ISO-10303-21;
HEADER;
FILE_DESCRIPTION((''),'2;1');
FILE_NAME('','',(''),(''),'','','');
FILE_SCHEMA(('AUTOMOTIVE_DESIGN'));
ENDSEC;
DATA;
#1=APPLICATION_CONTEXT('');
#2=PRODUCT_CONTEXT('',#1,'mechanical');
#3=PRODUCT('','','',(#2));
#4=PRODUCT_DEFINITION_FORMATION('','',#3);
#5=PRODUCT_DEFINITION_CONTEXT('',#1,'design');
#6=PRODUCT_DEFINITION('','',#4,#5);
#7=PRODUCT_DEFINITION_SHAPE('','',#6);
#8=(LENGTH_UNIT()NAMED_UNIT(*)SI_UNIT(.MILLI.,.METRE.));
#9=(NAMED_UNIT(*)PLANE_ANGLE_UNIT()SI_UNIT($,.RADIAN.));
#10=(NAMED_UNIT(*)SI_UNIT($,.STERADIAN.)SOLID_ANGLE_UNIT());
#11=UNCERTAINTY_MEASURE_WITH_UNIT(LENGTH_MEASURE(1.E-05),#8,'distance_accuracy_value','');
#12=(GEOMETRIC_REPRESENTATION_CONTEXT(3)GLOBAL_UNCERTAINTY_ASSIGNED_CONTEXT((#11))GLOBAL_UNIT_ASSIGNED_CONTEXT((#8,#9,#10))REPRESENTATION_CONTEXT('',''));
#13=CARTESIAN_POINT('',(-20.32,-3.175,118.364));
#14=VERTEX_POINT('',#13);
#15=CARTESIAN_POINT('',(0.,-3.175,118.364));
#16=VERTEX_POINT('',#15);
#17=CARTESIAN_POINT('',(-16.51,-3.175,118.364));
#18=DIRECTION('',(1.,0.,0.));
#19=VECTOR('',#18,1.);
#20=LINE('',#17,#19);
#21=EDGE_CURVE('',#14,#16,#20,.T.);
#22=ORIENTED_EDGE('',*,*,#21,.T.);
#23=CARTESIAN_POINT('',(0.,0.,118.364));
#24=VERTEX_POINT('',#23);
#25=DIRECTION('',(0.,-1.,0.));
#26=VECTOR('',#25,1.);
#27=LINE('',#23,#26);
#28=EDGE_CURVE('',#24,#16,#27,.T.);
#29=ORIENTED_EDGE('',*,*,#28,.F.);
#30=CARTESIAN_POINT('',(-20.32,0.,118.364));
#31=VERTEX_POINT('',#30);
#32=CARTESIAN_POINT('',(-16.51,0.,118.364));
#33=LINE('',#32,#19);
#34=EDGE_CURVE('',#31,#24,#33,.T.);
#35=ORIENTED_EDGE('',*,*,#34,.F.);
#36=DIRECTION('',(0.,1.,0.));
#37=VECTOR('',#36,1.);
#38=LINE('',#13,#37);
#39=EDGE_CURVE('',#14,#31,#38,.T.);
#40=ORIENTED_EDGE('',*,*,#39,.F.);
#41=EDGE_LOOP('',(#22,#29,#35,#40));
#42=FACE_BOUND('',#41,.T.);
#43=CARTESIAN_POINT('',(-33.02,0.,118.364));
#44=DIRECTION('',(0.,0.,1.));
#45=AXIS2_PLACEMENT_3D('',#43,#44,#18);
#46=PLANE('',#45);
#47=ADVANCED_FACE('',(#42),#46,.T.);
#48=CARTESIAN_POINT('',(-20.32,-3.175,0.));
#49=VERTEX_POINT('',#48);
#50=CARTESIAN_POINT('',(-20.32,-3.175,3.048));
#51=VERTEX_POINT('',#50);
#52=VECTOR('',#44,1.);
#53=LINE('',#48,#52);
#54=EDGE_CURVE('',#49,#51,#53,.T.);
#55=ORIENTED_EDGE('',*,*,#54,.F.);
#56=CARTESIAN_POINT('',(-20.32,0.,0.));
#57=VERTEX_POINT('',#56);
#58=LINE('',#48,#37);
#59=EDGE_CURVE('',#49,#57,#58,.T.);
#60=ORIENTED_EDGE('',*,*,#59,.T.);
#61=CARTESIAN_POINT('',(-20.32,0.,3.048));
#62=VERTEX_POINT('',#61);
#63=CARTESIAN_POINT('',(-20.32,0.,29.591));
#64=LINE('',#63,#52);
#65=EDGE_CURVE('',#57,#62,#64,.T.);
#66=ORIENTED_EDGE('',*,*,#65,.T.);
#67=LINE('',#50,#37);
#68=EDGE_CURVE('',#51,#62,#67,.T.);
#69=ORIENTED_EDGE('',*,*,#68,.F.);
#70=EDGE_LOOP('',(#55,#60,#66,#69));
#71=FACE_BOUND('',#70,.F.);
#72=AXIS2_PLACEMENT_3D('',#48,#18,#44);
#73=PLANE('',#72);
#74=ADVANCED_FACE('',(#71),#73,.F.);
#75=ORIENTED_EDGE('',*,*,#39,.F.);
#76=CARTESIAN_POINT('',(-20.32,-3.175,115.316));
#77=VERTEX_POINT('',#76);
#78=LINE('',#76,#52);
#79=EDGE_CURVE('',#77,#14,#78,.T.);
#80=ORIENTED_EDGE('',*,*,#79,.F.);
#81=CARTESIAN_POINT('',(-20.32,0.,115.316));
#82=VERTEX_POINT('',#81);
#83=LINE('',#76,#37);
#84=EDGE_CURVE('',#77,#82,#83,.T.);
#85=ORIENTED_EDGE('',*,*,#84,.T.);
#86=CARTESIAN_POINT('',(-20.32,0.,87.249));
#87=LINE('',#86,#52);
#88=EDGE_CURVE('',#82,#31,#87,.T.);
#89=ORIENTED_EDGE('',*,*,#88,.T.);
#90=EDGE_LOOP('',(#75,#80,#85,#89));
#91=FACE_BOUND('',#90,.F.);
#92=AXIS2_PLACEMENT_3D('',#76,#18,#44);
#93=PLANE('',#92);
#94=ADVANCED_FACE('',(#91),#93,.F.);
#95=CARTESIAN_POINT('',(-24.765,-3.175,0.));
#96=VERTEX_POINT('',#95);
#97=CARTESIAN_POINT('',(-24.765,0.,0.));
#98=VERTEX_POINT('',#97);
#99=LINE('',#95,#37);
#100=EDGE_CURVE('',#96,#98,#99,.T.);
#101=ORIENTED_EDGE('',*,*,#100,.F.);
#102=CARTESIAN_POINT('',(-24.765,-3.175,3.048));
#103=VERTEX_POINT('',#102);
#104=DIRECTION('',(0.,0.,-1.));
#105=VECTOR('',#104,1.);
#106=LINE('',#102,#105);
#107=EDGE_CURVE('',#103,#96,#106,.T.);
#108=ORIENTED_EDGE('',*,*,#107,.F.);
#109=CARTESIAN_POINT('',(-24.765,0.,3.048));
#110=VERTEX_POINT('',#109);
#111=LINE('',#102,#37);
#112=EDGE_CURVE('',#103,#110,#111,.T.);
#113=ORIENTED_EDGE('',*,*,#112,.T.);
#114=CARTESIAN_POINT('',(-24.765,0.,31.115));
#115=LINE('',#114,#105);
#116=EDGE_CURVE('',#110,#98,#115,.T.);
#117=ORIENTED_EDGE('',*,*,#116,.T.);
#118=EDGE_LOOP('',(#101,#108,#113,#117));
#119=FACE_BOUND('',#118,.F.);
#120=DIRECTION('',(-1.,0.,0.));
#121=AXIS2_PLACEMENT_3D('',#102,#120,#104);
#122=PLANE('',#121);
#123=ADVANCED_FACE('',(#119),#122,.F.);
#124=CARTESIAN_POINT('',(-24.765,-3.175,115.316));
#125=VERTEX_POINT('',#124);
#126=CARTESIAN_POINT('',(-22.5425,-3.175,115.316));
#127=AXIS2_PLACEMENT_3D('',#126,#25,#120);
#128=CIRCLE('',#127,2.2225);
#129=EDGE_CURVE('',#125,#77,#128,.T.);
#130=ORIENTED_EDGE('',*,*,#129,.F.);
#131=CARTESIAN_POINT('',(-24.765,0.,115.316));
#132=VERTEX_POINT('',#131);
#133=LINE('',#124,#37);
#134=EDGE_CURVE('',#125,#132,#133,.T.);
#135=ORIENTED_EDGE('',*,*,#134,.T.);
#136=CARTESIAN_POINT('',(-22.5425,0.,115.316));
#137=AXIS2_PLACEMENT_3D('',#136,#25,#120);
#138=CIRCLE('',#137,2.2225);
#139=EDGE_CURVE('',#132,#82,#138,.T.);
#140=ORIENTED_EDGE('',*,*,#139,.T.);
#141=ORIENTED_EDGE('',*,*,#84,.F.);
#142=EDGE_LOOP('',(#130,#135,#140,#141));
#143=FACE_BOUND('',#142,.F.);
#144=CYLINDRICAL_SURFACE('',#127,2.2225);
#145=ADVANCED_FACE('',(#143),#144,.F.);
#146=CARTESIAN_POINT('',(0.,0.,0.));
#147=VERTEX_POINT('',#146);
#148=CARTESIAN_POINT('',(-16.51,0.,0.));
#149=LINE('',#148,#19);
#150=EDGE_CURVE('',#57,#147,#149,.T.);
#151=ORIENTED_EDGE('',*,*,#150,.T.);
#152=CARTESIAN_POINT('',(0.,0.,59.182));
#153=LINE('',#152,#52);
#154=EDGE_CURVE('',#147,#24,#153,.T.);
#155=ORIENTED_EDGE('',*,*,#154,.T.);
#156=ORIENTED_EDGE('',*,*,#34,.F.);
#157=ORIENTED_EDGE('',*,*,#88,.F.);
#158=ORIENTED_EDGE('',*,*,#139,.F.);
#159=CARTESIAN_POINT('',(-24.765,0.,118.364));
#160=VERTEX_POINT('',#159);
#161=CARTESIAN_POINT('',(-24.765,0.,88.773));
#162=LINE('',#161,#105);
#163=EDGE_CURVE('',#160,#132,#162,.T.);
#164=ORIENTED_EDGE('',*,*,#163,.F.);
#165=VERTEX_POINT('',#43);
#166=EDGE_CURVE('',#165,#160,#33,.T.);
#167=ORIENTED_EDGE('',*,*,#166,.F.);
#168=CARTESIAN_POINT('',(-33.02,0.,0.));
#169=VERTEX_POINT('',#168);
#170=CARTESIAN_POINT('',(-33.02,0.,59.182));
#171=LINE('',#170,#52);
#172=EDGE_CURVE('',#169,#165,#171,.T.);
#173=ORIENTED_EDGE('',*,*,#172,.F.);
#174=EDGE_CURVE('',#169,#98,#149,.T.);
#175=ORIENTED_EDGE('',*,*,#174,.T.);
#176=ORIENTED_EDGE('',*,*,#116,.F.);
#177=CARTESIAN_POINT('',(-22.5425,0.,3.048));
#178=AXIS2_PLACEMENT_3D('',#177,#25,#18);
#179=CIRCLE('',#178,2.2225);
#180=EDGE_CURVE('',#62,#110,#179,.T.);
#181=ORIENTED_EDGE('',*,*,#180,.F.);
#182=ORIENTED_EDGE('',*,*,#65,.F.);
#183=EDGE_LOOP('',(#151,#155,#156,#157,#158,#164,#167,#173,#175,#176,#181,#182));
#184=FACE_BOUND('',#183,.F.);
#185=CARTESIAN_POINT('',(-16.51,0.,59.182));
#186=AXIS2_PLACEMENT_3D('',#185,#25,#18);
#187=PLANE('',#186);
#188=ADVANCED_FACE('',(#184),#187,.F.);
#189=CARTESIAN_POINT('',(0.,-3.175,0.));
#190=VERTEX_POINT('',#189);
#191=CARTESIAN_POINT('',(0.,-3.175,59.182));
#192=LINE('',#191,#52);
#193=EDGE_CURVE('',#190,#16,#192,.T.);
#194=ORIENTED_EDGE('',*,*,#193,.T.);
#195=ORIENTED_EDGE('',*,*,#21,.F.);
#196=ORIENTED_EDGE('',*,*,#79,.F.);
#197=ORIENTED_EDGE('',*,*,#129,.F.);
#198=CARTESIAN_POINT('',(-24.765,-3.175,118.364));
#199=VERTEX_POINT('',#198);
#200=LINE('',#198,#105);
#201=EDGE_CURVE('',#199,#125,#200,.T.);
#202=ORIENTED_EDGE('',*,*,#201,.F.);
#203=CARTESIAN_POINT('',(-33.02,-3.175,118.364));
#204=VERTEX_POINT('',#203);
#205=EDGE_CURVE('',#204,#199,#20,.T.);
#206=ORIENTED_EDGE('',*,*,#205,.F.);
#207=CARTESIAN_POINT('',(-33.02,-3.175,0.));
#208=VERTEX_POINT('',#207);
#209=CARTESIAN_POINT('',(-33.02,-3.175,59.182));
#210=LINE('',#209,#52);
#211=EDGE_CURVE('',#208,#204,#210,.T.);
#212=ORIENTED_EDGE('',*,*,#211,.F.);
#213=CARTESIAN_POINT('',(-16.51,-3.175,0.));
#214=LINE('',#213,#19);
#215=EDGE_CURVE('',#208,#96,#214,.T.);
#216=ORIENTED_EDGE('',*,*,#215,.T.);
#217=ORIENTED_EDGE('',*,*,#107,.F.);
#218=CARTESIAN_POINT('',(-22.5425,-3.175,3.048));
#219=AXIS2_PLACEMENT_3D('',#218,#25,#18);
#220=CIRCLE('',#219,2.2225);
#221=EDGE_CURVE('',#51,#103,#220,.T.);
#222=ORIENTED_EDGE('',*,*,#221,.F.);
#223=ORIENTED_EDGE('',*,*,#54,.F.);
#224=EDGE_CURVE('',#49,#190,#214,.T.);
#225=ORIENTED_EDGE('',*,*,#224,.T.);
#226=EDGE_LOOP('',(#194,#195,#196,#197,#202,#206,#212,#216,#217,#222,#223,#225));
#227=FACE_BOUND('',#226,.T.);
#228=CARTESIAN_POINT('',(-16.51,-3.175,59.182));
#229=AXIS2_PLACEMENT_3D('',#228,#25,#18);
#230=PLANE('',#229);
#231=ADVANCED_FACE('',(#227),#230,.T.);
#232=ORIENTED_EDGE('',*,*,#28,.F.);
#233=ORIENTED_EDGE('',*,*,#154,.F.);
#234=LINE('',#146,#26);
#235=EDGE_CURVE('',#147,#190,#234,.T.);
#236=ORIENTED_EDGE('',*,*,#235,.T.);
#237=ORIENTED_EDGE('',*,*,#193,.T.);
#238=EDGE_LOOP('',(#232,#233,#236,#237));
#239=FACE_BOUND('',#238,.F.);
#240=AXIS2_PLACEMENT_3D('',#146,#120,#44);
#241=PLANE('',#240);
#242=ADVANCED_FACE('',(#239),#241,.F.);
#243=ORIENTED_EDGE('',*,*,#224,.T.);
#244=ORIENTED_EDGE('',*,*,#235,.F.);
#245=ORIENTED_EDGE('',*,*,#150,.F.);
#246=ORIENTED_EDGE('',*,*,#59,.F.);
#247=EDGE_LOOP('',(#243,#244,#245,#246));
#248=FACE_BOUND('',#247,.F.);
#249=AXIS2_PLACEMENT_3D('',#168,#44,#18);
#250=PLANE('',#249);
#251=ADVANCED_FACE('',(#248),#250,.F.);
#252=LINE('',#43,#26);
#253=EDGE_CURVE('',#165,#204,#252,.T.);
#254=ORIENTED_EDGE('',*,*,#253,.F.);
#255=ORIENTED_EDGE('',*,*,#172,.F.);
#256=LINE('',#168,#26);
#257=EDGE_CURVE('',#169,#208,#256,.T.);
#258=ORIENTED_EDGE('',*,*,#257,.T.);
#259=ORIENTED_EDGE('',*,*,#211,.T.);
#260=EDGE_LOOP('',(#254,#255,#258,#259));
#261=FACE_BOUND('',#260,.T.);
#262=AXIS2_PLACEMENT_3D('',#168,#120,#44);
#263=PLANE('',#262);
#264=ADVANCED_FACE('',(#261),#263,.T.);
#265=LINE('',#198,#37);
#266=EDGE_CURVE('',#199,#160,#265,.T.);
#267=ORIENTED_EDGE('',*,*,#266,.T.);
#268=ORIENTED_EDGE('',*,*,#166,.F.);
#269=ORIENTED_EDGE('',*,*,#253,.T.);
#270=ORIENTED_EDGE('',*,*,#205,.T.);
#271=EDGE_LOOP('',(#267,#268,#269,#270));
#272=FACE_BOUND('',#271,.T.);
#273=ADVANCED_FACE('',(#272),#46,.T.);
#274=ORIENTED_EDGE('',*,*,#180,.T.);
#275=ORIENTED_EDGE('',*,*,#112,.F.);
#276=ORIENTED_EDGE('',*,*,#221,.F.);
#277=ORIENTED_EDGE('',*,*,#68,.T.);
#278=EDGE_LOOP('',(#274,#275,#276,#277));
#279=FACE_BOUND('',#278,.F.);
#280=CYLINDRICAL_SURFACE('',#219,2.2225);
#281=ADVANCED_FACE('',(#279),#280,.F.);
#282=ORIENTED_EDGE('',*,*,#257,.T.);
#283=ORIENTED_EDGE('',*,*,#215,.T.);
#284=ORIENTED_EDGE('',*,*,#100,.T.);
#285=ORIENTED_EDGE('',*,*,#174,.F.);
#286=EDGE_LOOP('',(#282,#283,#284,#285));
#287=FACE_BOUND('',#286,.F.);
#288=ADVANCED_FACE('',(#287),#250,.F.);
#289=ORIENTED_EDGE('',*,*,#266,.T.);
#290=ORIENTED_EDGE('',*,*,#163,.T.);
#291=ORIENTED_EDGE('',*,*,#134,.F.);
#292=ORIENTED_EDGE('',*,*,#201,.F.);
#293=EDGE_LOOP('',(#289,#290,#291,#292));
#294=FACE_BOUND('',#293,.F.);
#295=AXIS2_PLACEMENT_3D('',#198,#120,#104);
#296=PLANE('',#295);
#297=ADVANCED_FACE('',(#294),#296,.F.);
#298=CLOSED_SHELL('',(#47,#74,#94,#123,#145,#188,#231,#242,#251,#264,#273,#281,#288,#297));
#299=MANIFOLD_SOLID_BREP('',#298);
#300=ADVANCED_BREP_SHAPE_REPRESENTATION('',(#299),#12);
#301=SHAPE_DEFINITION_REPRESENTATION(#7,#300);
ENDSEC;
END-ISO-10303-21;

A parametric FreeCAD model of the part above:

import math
import FreeCAD as App
import Part
import Sketcher
from FreeCAD import Vector
Q = App.Units.Quantity

doc = App.newDocument("Part")
body = doc.addObject("PartDesign::Body", "Body")

# Sketch on XZ plane
sketch1 = doc.addObject("Sketcher::SketchObject", "Sketch")
body.addObject(sketch1)
sketch1.AttachmentSupport = (doc.XZ_Plane, [""])
sketch1.MapMode = "FlatFace"
sketch1.addGeometry([
    Part.LineSegment(Vector(-33, 118, 0), Vector(-33, 0, 0)),
    Part.LineSegment(Vector(-33, 0, 0), Vector(0, 0, 0)),
    Part.LineSegment(Vector(0, 0, 0), Vector(0, 118, 0)),
    Part.LineSegment(Vector(0, 118, 0), Vector(-33, 118, 0)),
], False)
sketch1.addConstraint([
    Sketcher.Constraint("Coincident", 0, 2, 1, 1),
    Sketcher.Constraint("Coincident", 1, 2, 2, 1),
    Sketcher.Constraint("Coincident", 2, 2, 3, 1),
    Sketcher.Constraint("Coincident", 3, 2, 0, 1),
    Sketcher.Constraint("Vertical", 0),
    Sketcher.Constraint("Horizontal", 1),
    Sketcher.Constraint("Vertical", 2),
    Sketcher.Constraint("Horizontal", 3),
    Sketcher.Constraint("Coincident", 1, 2, -1, 1),
    Sketcher.Constraint("DistanceX", 1, 1, 1, 2, Q("1.3 in")),
    Sketcher.Constraint("DistanceY", 0, 2, 0, 1, Q("4.66 in")),
])
pad1 = doc.addObject("PartDesign::Pad", "Pad")
body.addObject(pad1)
pad1.Profile = sketch1
pad1.Length = Q("0.125 in")

# Sketch on XZ plane
sketch2 = doc.addObject("Sketcher::SketchObject", "Sketch001")
body.addObject(sketch2)
sketch2.AttachmentSupport = (doc.XZ_Plane, [""])
sketch2.MapMode = "FlatFace"
sketch2.AttachmentOffset = App.Placement(Vector(0, 0, 0.125 * 25.4), App.Rotation())
sketch2.addGeometry([
    Part.LineSegment(Vector(-24.8, 3, 0), Vector(-24.8, 0, 0)),  # 0
    Part.LineSegment(Vector(-24.8, 0, 0), Vector(-20.3, 0, 0)),  # 1
    Part.LineSegment(Vector(-20.3, 0, 0), Vector(-20.3, 3, 0)),  # 2
    Part.ArcOfCircle(Part.Circle(Vector(-22.5, 3, 0), Vector(0, 0, 1), 2.2), math.radians(0), math.radians(180)),  # 3
    Part.LineSegment(Vector(-24.8, 118.4, 0), Vector(-24.8, 115.3, 0)),  # 4
    Part.ArcOfCircle(Part.Circle(Vector(-22.5, 115.3, 0), Vector(0, 0, 1), 2.2), math.radians(180), math.radians(360)),  # 5
    Part.LineSegment(Vector(-20.3, 115.3, 0), Vector(-20.3, 118.4, 0)),  # 6
    Part.LineSegment(Vector(-20.3, 118.4, 0), Vector(-24.8, 118.4, 0)),  # 7
], False)
sketch2.addConstraint([
    Sketcher.Constraint("Coincident", 0, 2, 1, 1),
    Sketcher.Constraint("Coincident", 1, 2, 2, 1),
    Sketcher.Constraint("Tangent", 2, 2, 3, 1),
    Sketcher.Constraint("Tangent", 3, 2, 0, 1),
    Sketcher.Constraint("Tangent", 4, 2, 5, 1),
    Sketcher.Constraint("Tangent", 5, 2, 6, 1),
    Sketcher.Constraint("Coincident", 6, 2, 7, 1),
    Sketcher.Constraint("Coincident", 7, 2, 4, 1),
    Sketcher.Constraint("Vertical", 0),
    Sketcher.Constraint("Horizontal", 1),
    Sketcher.Constraint("Vertical", 2),
    Sketcher.Constraint("Vertical", 4),
    Sketcher.Constraint("Vertical", 6),
    Sketcher.Constraint("Horizontal", 7),
    Sketcher.Constraint("Equal", 3, 5),
    Sketcher.Constraint("PointOnObject", 0, 2, -1),
    Sketcher.Constraint("Vertical", 3, 3, 5, 3),
    Sketcher.Constraint("Equal", 2, 4),
    Sketcher.Constraint("DistanceY", 0, 2, 0, 1, Q("0.12 in")),
    Sketcher.Constraint("DistanceX", 1, 2, -1, 1, Q("0.8 in")),
    Sketcher.Constraint("Radius", 3, Q("0.0875 in")),
    Sketcher.Constraint("DistanceY", -1, 1, 5, 3, Q("4.54 in")),
])
pocket1 = doc.addObject("PartDesign::Pocket", "Pocket")
body.addObject(pocket1)
pocket1.Profile = sketch2
pocket1.Type = "ThroughAll"

doc.recompute()
